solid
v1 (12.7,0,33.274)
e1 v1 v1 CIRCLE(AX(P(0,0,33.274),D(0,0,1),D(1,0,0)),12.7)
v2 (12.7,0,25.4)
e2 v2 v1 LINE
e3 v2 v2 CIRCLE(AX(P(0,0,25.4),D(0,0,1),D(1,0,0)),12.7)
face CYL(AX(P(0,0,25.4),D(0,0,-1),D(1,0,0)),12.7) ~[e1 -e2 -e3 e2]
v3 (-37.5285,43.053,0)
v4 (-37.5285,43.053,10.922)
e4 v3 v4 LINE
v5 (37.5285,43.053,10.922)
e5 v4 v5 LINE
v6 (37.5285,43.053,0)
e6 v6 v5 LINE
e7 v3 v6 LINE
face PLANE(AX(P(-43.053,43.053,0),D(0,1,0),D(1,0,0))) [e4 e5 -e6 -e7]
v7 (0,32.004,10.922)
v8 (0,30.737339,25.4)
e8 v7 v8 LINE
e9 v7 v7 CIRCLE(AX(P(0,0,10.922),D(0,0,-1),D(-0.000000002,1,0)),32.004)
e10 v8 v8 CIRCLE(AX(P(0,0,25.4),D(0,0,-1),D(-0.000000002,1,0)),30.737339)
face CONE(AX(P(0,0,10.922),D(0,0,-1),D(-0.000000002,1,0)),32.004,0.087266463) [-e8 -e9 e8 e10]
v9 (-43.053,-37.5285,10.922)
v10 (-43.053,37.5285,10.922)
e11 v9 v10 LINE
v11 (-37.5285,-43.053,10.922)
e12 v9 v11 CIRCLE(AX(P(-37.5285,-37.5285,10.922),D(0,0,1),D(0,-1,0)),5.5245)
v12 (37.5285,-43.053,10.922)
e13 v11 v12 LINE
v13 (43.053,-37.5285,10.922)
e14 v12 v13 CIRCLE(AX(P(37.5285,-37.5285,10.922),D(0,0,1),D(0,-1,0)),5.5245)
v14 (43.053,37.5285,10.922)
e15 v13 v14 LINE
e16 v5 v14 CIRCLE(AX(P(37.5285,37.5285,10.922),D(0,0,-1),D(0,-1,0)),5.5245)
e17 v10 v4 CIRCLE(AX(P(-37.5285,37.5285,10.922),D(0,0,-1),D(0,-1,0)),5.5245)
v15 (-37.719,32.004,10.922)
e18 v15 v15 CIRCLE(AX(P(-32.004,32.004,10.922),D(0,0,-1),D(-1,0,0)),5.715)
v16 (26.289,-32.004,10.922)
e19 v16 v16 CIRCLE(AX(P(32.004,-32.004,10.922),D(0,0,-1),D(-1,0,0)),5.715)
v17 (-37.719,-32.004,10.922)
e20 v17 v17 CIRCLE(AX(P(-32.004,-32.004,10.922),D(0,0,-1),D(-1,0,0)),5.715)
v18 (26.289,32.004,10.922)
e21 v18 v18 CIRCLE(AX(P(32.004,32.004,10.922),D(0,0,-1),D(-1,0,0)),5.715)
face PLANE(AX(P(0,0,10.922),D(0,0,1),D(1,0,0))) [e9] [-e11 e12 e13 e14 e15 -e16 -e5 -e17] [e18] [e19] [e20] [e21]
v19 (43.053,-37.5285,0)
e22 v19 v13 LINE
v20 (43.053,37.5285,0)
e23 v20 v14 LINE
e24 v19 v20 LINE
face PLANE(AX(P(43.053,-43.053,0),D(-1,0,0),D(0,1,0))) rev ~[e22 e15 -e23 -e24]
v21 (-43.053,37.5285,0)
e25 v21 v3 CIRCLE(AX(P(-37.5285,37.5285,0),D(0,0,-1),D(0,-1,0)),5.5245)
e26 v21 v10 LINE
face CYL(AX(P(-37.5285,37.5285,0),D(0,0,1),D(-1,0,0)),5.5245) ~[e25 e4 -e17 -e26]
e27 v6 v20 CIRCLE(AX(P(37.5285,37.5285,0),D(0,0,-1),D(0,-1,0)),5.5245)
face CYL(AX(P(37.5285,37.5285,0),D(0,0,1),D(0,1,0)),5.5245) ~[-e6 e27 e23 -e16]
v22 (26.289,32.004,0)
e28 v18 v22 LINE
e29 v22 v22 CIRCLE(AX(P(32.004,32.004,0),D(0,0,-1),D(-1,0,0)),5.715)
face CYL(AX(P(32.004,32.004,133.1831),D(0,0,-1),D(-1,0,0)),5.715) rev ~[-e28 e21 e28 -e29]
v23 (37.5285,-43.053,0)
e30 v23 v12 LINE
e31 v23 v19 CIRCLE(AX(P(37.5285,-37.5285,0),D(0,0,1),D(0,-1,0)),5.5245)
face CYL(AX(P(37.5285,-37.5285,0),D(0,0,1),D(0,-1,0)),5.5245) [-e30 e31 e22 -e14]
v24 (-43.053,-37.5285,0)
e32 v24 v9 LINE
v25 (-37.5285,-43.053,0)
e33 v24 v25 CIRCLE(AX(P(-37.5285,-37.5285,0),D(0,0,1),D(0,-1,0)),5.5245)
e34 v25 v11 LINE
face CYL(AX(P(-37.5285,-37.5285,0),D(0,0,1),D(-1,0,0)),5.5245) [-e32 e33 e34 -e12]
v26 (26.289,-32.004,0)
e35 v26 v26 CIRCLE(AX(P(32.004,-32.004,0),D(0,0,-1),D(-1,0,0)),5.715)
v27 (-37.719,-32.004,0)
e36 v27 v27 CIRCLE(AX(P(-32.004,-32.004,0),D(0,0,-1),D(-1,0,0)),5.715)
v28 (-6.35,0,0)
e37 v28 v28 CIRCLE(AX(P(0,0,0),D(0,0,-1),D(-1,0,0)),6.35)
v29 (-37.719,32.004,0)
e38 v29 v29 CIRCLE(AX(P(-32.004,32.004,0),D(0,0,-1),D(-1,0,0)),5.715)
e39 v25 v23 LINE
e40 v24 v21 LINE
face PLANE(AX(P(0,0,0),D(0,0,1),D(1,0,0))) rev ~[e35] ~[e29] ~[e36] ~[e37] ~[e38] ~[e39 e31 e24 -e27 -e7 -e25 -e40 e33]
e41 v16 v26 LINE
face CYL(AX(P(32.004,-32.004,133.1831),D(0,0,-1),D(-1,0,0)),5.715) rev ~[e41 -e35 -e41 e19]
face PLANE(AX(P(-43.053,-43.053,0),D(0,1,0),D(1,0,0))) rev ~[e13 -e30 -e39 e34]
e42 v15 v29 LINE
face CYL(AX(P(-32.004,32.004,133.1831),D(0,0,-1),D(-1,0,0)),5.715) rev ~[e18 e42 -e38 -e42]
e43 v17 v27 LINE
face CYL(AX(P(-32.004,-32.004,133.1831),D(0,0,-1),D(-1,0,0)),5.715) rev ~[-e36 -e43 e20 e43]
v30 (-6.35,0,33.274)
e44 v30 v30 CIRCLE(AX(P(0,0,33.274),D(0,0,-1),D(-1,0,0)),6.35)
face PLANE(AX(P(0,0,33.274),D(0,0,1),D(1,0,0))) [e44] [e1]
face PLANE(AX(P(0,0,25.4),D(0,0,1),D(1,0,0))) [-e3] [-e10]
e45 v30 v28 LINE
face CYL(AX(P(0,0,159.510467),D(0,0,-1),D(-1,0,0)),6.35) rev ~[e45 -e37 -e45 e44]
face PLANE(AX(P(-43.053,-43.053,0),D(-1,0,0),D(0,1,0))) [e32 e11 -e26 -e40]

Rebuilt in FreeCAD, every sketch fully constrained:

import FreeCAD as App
import Part
import Sketcher

V = App.Vector
Q = App.Units.Quantity


def edges_at(feature, points):
    """Names of the edges that pass closest to the given points."""
    edges = feature.Shape.Edges
    near = lambda p: min(range(len(edges)), key=lambda i: edges[i].distToShape(Part.Vertex(*p))[0])
    return sorted({f"Edge{near(p) + 1}" for p in points})

doc = App.newDocument("Part")
body = doc.addObject("PartDesign::Body", "Body")

# Sketch on XY plane
sketch1 = body.newObject("Sketcher::SketchObject", "Sketch")
sketch1.AttachmentSupport = (doc.getObject("XY_Plane"), [""])
sketch1.MapMode = "FlatFace"
sketch1.addGeometry([
    Part.LineSegment(V(-43.053, 43.053, 0), V(-43.053, -43.053, 0)),
    Part.LineSegment(V(-43.053, -43.053, 0), V(43.053, -43.053, 0)),
    Part.LineSegment(V(43.053, -43.053, 0), V(43.053, 43.053, 0)),
    Part.LineSegment(V(43.053, 43.053, 0), V(-43.053, 43.053, 0)),
], False)
sketch1.addConstraint([
    Sketcher.Constraint("Coincident", 0, 2, 1, 1),
    Sketcher.Constraint("Coincident", 1, 2, 2, 1),
    Sketcher.Constraint("Coincident", 2, 2, 3, 1),
    Sketcher.Constraint("Coincident", 3, 2, 0, 1),
    Sketcher.Constraint("Vertical", 0),
    Sketcher.Constraint("Horizontal", 1),
    Sketcher.Constraint("Vertical", 2),
    Sketcher.Constraint("Horizontal", 3),
    Sketcher.Constraint("Symmetric", 0, 2, 2, 2, -1, 1),
    Sketcher.Constraint("Equal", 3, 0),
    Sketcher.Constraint("DistanceX", 1, 1, 1, 2, Q("3.39 in")),
])
pad1 = body.newObject("PartDesign::Pad", "Pad")
pad1.Profile = sketch1
pad1.Length = Q("0.43 in")

# Sketch on XY plane
sketch2 = body.newObject("Sketcher::SketchObject", "Sketch001")
sketch2.AttachmentSupport = (doc.getObject("XY_Plane"), [""])
sketch2.MapMode = "FlatFace"
sketch2.AttachmentOffset = App.Placement(V(0, 0, 0.43 * 25.4), App.Rotation())
sketch2.addGeometry([
    Part.Circle(V(-32.004, 32.004, 0), V(0, 0, 1), 5.715),
    Part.Circle(V(32.004, 32.004, 0), V(0, 0, 1), 5.715),
    Part.Circle(V(32.004, -32.004, 0), V(0, 0, 1), 5.715),
    Part.Circle(V(-32.004, -32.004, 0), V(0, 0, 1), 5.715),
], False)
sketch2.addConstraint([
    Sketcher.Constraint("Equal", 0, 1),
    Sketcher.Constraint("Equal", 1, 2),
    Sketcher.Constraint("Equal", 2, 3),
    Sketcher.Constraint("Symmetric", 0, 3, 2, 3, -1, 1),
    Sketcher.Constraint("Symmetric", 1, 3, 3, 3, -1, 1),
    Sketcher.Constraint("Symmetric", 0, 3, 1, 3, -2),
    Sketcher.Constraint("Diameter", 0, Q("0.45 in")),
    Sketcher.Constraint("DistanceX", 0, 3, -1, 1, Q("1.26 in")),
    Sketcher.Constraint("DistanceY", -1, 1, 0, 3, Q("1.26 in")),
])
doc.recompute()
hole = body.newObject("PartDesign::Hole", "Hole")
hole.Profile = sketch2
hole.ThreadType = "None"
hole.Diameter = Q("0.45 in")
hole.DepthType = "ThroughAll"

# Sketch on XY plane
sketch3 = body.newObject("Sketcher::SketchObject", "Sketch002")
sketch3.AttachmentSupport = (doc.getObject("XY_Plane"), [""])
sketch3.MapMode = "FlatFace"
sketch3.AttachmentOffset = App.Placement(V(0, 0, 0.43 * 25.4), App.Rotation())
sketch3.addGeometry(Part.Circle(V(0, 0, 0), V(0, 0, 1), 32.004), False)
sketch3.addConstraint([
    Sketcher.Constraint("Coincident", 0, 3, -1, 1),
    Sketcher.Constraint("Diameter", 0, Q("2.52 in")),
])
pad2 = body.newObject("PartDesign::Pad", "Pad001")
pad2.Profile = sketch3
pad2.Length = Q("0.57 in")
pad2.TaperAngle = -5

# Sketch on XY plane
sketch4 = body.newObject("Sketcher::SketchObject", "Sketch003")
sketch4.AttachmentSupport = (doc.getObject("XY_Plane"), [""])
sketch4.MapMode = "FlatFace"
sketch4.AttachmentOffset = App.Placement(V(0, 0, 1 * 25.4), App.Rotation())
sketch4.addGeometry(Part.Circle(V(0, 0, 0), V(0, 0, 1), 12.7), False)
sketch4.addConstraint([
    Sketcher.Constraint("Coincident", 0, 3, -1, 1),
    Sketcher.Constraint("Diameter", 0, Q("1 in")),
])
pad3 = body.newObject("PartDesign::Pad", "Pad002")
pad3.Profile = sketch4
pad3.Length = Q("0.31 in")

# Sketch on XY plane
sketch5 = body.newObject("Sketcher::SketchObject", "Sketch004")
sketch5.AttachmentSupport = (doc.getObject("XY_Plane"), [""])
sketch5.MapMode = "FlatFace"
sketch5.AttachmentOffset = App.Placement(V(0, 0, 1.31 * 25.4), App.Rotation())
sketch5.addGeometry(Part.Circle(V(0, 0, 0), V(0, 0, 1), 6.35), False)
sketch5.addConstraint([
    Sketcher.Constraint("Coincident", 0, 3, -1, 1),
    Sketcher.Constraint("Diameter", 0, Q("0.5 in")),
])
doc.recompute()
hole2 = body.newObject("PartDesign::Hole", "Hole001")
hole2.Profile = sketch5
hole2.ThreadType = "None"
hole2.Diameter = Q("0.5 in")
hole2.DepthType = "ThroughAll"
doc.recompute()

fillet = body.newObject("PartDesign::Fillet", "Fillet")
fillet.Base = (hole2, edges_at(hole2, [
    (43.053, 43.053, 5.461),
    (43.053, -43.053, 5.461),
    (-43.053, -43.053, 5.461),
    (-43.053, 43.053, 5.461),
]))
fillet.Radius = Q("0.2175 in")

doc.recompute()
